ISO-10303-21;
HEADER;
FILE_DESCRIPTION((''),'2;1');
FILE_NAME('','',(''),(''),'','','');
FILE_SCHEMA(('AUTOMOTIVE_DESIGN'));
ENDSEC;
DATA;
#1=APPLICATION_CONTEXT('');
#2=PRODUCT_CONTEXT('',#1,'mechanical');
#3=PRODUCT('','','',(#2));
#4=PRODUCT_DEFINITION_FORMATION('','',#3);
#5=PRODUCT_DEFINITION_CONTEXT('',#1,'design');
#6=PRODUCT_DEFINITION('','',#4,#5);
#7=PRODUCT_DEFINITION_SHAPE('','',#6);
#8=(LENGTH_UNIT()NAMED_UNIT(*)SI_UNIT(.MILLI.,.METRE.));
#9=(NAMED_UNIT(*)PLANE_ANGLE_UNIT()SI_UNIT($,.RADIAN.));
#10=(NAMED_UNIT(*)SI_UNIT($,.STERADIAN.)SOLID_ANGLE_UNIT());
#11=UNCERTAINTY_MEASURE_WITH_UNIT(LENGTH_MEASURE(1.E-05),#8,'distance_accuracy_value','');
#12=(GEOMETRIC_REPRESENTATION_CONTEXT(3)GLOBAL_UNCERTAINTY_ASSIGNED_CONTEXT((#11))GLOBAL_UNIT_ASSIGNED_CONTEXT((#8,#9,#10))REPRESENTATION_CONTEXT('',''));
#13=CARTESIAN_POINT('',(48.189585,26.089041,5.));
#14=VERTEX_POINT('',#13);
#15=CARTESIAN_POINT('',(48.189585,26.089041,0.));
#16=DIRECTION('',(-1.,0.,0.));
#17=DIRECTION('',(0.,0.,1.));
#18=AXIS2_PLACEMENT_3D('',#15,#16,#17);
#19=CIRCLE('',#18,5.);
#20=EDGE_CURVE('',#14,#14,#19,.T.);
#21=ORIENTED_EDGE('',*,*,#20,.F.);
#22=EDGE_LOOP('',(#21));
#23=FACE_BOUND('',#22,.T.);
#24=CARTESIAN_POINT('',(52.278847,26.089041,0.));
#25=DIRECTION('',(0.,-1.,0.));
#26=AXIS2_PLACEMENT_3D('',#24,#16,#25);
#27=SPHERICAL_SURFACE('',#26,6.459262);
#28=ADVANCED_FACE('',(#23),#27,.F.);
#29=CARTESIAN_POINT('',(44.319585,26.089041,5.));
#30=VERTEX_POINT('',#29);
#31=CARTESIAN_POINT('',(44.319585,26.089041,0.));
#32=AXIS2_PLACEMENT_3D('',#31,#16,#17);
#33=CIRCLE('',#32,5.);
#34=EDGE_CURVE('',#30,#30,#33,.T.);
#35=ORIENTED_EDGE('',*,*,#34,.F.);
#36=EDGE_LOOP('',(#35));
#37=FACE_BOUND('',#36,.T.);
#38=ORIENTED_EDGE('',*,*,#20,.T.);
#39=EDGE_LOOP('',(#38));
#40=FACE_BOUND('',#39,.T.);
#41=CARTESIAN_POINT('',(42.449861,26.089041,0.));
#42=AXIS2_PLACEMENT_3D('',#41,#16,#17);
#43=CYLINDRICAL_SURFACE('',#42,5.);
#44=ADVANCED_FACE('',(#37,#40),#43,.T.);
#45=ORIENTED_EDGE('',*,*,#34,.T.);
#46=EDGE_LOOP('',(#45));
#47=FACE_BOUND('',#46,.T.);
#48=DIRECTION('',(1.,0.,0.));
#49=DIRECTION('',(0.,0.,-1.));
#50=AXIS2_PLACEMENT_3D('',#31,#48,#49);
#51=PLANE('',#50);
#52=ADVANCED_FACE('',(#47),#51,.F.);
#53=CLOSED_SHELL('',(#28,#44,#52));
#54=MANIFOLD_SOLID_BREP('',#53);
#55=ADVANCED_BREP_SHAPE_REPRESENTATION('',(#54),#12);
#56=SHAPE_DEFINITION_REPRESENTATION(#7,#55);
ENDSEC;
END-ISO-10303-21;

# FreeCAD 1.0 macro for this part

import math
import FreeCAD as App
import Part
import Sketcher
from FreeCAD import Vector
Q = App.Units.Quantity

doc = App.newDocument("Part")
body = doc.addObject("PartDesign::Body", "Body")

# Sketch on XY plane
sketch1 = body.newObject("Sketcher::SketchObject", "Sketch")
sketch1.AttachmentSupport = (doc.getObject("XY_Plane"), [""])
sketch1.MapMode = "FlatFace"
sketch1.addGeometry([
    Part.LineSegment(Vector(44.3, 31.1, 0), Vector(44.3, 26.1, 0)),
    Part.LineSegment(Vector(44.3, 26.1, 0), Vector(45.8, 26.1, 0)),
    Part.ArcOfCircle(Part.Circle(Vector(52.3, 26.1, 0), Vector(0, 0, 1), 6.5), math.radians(129), math.radians(180)),
    Part.LineSegment(Vector(48.2, 31.1, 0), Vector(44.3, 31.1, 0)),
], False)
sketch1.addGeometry(Part.LineSegment(Vector(44.3, 26.1, 0), Vector(52.3, 26.1, 0)), True)  # axis
sketch1.addConstraint([
    Sketcher.Constraint("Coincident", 0, 2, 1, 1),
    Sketcher.Constraint("Coincident", 1, 2, 2, 2),
    Sketcher.Constraint("Coincident", 2, 1, 3, 1),
    Sketcher.Constraint("Coincident", 3, 2, 0, 1),
    Sketcher.Constraint("Vertical", 0),
    Sketcher.Constraint("Horizontal", 1),
    Sketcher.Constraint("Horizontal", 3),
    Sketcher.Constraint("Horizontal", 4),
    Sketcher.Constraint("Coincident", 4, 1, 0, 2),
    Sketcher.Constraint("Coincident", 4, 2, 2, 3),
    Sketcher.Constraint("DistanceY", 0, 2, 0, 1, Q("5 mm")),
    Sketcher.Constraint("DistanceX", 1, 1, 1, 2, Q("1.5 mm")),
    Sketcher.Constraint("DistanceX", 3, 2, 3, 1, Q("3.87 mm")),
    Sketcher.Constraint("DistanceY", -1, 1, 2, 3, Q("26.089041 mm")),
    Sketcher.Constraint("DistanceX", -1, 1, 2, 3, Q("52.278847 mm")),
])
revolution = body.newObject("PartDesign::Revolution", "Revolution")
revolution.Profile = sketch1
revolution.ReferenceAxis = (sketch1, ["Axis0"])
revolution.Angle = 360

doc.recompute()
